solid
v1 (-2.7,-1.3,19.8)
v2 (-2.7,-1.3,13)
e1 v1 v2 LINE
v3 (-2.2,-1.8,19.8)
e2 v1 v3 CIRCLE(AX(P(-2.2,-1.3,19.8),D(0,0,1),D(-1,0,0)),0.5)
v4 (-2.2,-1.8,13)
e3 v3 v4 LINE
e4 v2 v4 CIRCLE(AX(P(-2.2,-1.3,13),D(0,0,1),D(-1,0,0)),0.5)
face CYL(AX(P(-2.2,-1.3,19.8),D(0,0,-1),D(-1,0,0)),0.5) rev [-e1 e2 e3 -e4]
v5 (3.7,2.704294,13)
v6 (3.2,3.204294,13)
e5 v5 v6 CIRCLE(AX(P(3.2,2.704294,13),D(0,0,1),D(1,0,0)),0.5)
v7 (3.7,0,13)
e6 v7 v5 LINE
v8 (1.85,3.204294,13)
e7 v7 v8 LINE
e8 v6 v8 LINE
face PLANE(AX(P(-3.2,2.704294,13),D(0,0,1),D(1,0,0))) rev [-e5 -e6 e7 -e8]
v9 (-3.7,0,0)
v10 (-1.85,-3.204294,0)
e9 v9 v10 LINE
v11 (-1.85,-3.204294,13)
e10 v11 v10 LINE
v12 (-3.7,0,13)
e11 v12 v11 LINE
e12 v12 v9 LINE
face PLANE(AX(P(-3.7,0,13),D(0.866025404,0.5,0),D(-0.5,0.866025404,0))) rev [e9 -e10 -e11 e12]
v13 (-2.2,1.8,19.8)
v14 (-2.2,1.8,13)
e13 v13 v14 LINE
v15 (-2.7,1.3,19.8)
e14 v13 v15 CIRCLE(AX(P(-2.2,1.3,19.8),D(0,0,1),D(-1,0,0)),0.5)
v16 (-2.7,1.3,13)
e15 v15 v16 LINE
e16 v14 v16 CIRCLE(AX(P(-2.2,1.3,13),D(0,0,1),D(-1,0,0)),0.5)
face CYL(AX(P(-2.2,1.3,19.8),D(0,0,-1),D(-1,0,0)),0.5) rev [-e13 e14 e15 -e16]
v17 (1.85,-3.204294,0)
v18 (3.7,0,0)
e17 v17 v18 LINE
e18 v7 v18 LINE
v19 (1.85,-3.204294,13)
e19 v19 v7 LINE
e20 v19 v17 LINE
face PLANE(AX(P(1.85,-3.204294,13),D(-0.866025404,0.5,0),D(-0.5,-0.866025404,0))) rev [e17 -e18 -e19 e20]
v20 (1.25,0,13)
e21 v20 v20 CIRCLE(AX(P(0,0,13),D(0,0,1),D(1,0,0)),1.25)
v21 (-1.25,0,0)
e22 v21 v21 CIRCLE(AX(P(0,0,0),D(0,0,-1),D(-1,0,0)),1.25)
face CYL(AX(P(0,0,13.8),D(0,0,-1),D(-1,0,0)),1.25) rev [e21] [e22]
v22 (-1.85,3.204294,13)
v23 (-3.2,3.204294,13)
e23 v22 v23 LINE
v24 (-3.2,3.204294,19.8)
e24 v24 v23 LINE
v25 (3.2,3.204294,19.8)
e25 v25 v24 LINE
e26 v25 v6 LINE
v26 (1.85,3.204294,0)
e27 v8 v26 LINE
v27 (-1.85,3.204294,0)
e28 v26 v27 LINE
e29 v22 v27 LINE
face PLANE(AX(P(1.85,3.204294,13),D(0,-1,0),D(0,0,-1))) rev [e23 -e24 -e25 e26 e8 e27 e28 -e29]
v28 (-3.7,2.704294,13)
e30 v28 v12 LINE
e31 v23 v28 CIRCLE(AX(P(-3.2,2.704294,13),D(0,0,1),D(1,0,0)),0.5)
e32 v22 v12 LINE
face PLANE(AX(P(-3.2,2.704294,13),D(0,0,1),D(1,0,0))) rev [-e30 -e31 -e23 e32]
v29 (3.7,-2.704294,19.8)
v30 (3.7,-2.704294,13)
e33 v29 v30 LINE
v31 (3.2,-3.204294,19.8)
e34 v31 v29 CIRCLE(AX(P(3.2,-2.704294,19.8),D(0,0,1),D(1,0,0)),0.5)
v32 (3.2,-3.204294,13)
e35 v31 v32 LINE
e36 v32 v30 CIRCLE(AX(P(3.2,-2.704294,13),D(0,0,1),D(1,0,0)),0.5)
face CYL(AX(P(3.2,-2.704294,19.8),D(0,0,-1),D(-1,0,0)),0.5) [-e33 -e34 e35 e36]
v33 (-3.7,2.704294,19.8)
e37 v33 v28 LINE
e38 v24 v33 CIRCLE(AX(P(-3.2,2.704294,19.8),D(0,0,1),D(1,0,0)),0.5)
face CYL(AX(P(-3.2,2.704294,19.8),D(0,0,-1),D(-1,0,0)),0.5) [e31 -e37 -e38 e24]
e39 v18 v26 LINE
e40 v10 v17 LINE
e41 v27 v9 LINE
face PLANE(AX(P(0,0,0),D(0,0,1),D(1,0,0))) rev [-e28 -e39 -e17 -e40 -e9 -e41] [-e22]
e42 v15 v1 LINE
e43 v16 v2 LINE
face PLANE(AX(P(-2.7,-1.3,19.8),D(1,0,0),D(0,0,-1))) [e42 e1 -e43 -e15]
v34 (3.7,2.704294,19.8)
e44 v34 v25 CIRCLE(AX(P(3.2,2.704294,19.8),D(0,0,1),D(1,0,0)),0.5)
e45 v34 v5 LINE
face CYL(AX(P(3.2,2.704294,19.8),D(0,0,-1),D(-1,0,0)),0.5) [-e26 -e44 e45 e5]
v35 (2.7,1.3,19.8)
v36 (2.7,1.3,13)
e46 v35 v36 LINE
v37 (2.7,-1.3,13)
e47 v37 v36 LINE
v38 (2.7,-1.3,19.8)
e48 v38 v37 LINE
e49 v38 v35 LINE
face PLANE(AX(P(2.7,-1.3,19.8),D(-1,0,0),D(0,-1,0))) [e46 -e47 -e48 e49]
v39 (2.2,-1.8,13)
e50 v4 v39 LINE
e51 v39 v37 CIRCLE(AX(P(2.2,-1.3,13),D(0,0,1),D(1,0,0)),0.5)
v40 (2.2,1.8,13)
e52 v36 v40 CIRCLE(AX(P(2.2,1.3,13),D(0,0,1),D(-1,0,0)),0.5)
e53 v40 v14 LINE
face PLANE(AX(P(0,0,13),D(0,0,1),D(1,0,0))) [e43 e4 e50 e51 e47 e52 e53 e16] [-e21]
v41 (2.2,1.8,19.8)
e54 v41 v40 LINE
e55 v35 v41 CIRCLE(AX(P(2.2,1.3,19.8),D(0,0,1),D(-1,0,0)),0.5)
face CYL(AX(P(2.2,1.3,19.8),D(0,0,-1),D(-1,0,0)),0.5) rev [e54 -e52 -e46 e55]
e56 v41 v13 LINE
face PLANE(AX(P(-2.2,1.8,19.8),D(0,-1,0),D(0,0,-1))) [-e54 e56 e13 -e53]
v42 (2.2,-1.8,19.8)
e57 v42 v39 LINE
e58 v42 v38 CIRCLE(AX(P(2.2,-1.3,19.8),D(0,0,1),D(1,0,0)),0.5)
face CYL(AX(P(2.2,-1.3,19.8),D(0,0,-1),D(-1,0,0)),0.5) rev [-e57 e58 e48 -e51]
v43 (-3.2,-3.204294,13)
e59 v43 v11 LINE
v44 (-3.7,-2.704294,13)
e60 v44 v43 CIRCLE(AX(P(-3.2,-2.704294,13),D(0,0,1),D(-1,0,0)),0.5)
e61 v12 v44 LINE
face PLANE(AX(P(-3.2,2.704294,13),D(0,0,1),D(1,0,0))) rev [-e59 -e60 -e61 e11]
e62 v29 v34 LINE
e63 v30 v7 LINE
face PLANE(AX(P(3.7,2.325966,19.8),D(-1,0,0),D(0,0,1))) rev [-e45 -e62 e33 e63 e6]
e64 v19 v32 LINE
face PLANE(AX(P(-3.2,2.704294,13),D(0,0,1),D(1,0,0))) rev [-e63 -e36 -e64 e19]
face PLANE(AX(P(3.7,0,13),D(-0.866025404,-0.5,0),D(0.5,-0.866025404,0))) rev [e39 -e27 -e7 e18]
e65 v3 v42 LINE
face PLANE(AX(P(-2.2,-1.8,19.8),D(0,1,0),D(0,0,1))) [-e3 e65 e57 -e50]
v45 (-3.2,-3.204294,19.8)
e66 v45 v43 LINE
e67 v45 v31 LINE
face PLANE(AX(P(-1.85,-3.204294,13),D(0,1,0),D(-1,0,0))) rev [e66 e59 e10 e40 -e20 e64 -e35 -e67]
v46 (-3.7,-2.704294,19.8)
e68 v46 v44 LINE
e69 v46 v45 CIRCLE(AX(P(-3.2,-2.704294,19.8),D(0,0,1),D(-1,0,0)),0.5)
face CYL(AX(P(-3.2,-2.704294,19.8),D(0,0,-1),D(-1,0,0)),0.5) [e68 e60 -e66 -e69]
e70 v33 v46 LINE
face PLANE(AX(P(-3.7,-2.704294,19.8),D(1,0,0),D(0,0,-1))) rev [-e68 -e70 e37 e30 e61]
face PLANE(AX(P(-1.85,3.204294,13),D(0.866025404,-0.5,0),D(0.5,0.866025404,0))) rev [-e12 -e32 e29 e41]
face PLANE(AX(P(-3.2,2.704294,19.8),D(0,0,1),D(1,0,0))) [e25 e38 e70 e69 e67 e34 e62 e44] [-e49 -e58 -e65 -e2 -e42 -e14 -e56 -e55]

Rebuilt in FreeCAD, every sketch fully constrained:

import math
import FreeCAD as App
import Part
import Sketcher
Q = App.Units.Quantity

doc = App.newDocument("Part")
body = doc.addObject("PartDesign::Body", "Body")

sketch1 = body.newObject("Sketcher::SketchObject", "Sketch")
sketch1.AttachmentSupport = (doc.getObject("XY_Plane"), [""])
sketch1.MapMode = "FlatFace"
sketch1.addGeometry([
    Part.LineSegment(App.Vector(3.7, 0, 0), App.Vector(1.9, 3.2, 0)),
    Part.LineSegment(App.Vector(1.9, 3.2, 0), App.Vector(-1.9, 3.2, 0)),
    Part.LineSegment(App.Vector(-1.9, 3.2, 0), App.Vector(-3.7, 0, 0)),
    Part.LineSegment(App.Vector(-3.7, 0, 0), App.Vector(-1.9, -3.2, 0)),
    Part.LineSegment(App.Vector(-1.9, -3.2, 0), App.Vector(1.9, -3.2, 0)),
    Part.LineSegment(App.Vector(1.9, -3.2, 0), App.Vector(3.7, 0, 0)),
], False)
sketch1.addConstraint([
    Sketcher.Constraint("Coincident", 0, 2, 1, 1),
    Sketcher.Constraint("Coincident", 1, 2, 2, 1),
    Sketcher.Constraint("Coincident", 2, 2, 3, 1),
    Sketcher.Constraint("Coincident", 3, 2, 4, 1),
    Sketcher.Constraint("Coincident", 4, 2, 5, 1),
    Sketcher.Constraint("Coincident", 5, 2, 0, 1),
    Sketcher.Constraint("Horizontal", 1),
    Sketcher.Constraint("Horizontal", 4),
    Sketcher.Constraint("Symmetric", 0, 2, 3, 2, -1, 1),
    Sketcher.Constraint("Symmetric", 2, 2, 5, 2, -1, 1),
    Sketcher.Constraint("PointOnObject", 2, 2, -1),
    Sketcher.Constraint("Parallel", 2, 5),
    Sketcher.Constraint("Vertical", 1, 2, 3, 2),
    Sketcher.Constraint("Angle", 0, Q("120 deg")),
    Sketcher.Constraint("DistanceX", 1, 2, 1, 1, Q("3.7 mm")),
    Sketcher.Constraint("Distance", 0, Q("3.7 mm")),
])
pad1 = body.newObject("PartDesign::Pad", "Pad")
pad1.Profile = sketch1
pad1.Length = 13

sketch2 = body.newObject("Sketcher::SketchObject", "Sketch001")
sketch2.AttachmentSupport = (doc.getObject("XY_Plane"), [""])
sketch2.MapMode = "FlatFace"
sketch2.AttachmentOffset = App.Placement(App.Vector(0, 0, 13), App.Rotation())
sketch2.addGeometry([
    Part.ArcOfCircle(Part.Circle(App.Vector(3.2, -2.7, 0), App.Vector(0, 0, 1), 0.5), math.radians(-90), math.radians(0)),
    Part.LineSegment(App.Vector(3.7, -2.7, 0), App.Vector(3.7, 2.7, 0)),
    Part.ArcOfCircle(Part.Circle(App.Vector(3.2, 2.7, 0), App.Vector(0, 0, 1), 0.5), math.radians(0), math.radians(90)),
    Part.LineSegment(App.Vector(3.2, 3.2, 0), App.Vector(-3.2, 3.2, 0)),
    Part.ArcOfCircle(Part.Circle(App.Vector(-3.2, 2.7, 0), App.Vector(0, 0, 1), 0.5), math.radians(90), math.radians(180)),
    Part.LineSegment(App.Vector(-3.7, 2.7, 0), App.Vector(-3.7, -2.7, 0)),
    Part.ArcOfCircle(Part.Circle(App.Vector(-3.2, -2.7, 0), App.Vector(0, 0, 1), 0.5), math.radians(180), math.radians(270)),
    Part.LineSegment(App.Vector(-3.2, -3.2, 0), App.Vector(3.2, -3.2, 0)),
    Part.LineSegment(App.Vector(2.2, -1.8, 0), App.Vector(-2.2, -1.8, 0)),
    Part.ArcOfCircle(Part.Circle(App.Vector(-2.2, -1.3, 0), App.Vector(0, 0, 1), 0.5), math.radians(180), math.radians(270)),
    Part.LineSegment(App.Vector(-2.7, -1.3, 0), App.Vector(-2.7, 1.3, 0)),
    Part.ArcOfCircle(Part.Circle(App.Vector(-2.2, 1.3, 0), App.Vector(0, 0, 1), 0.5), math.radians(90), math.radians(180)),
    Part.LineSegment(App.Vector(-2.2, 1.8, 0), App.Vector(2.2, 1.8, 0)),
    Part.ArcOfCircle(Part.Circle(App.Vector(2.2, 1.3, 0), App.Vector(0, 0, 1), 0.5), math.radians(0), math.radians(90)),
    Part.LineSegment(App.Vector(2.7, 1.3, 0), App.Vector(2.7, -1.3, 0)),
    Part.ArcOfCircle(Part.Circle(App.Vector(2.2, -1.3, 0), App.Vector(0, 0, 1), 0.5), math.radians(-90), math.radians(0)),
], False)
sketch2.addConstraint([
    Sketcher.Constraint("Tangent", 0, 2, 1, 1),
    Sketcher.Constraint("Tangent", 1, 2, 2, 1),
    Sketcher.Constraint("Tangent", 2, 2, 3, 1),
    Sketcher.Constraint("Tangent", 3, 2, 4, 1),
    Sketcher.Constraint("Tangent", 4, 2, 5, 1),
    Sketcher.Constraint("Tangent", 5, 2, 6, 1),
    Sketcher.Constraint("Tangent", 6, 2, 7, 1),
    Sketcher.Constraint("Tangent", 7, 2, 0, 1),
    Sketcher.Constraint("Tangent", 8, 2, 9, 2),
    Sketcher.Constraint("Tangent", 9, 1, 10, 1),
    Sketcher.Constraint("Tangent", 10, 2, 11, 2),
    Sketcher.Constraint("Tangent", 11, 1, 12, 1),
    Sketcher.Constraint("Tangent", 12, 2, 13, 2),
    Sketcher.Constraint("Tangent", 13, 1, 14, 1),
    Sketcher.Constraint("Tangent", 14, 2, 15, 2),
    Sketcher.Constraint("Tangent", 15, 1, 8, 1),
    Sketcher.Constraint("Vertical", 1),
    Sketcher.Constraint("Horizontal", 3),
    Sketcher.Constraint("Vertical", 5),
    Sketcher.Constraint("Horizontal", 7),
    Sketcher.Constraint("Horizontal", 8),
    Sketcher.Constraint("Vertical", 10),
    Sketcher.Constraint("Horizontal", 12),
    Sketcher.Constraint("Vertical", 14),
    Sketcher.Constraint("Equal", 0, 2),
    Sketcher.Constraint("Equal", 2, 4),
    Sketcher.Constraint("Equal", 4, 6),
    Sketcher.Constraint("Equal", 6, 9),
    Sketcher.Constraint("Equal", 9, 11),
    Sketcher.Constraint("Equal", 11, 13),
    Sketcher.Constraint("Equal", 13, 15),
    Sketcher.Constraint("Symmetric", 0, 3, 4, 3, -1, 1),
    Sketcher.Constraint("Symmetric", 9, 3, 13, 3, -1, 1),
    Sketcher.Constraint("Radius", 0, Q("0.5 mm")),
    Sketcher.Constraint("DistanceX", 3, 2, 3, 1, Q("6.4 mm")),
    Sketcher.Constraint("DistanceX", 8, 2, 8, 1, Q("4.4 mm")),
    Sketcher.Constraint("DistanceY", 10, 1, 10, 2, Q("2.6 mm")),
    Sketcher.Constraint("DistanceY", 1, 1, 1, 2, Q("5.408588 mm")),
])
pad2 = body.newObject("PartDesign::Pad", "Pad001")
pad2.Profile = sketch2
pad2.Length = 6.8

sketch3 = body.newObject("Sketcher::SketchObject", "Sketch002")
sketch3.AttachmentSupport = (doc.getObject("XY_Plane"), [""])
sketch3.MapMode = "FlatFace"
sketch3.addGeometry(Part.Circle(App.Vector(0, 0, 0), App.Vector(0, 0, 1), 1.2), False)
sketch3.addConstraint([
    Sketcher.Constraint("Coincident", 0, 3, -1, 1),
    Sketcher.Constraint("Diameter", 0, Q("2.5 mm")),
])
pocket1 = body.newObject("PartDesign::Pocket", "Pocket")
pocket1.Profile = sketch3
pocket1.Length = 13.8
pocket1.Reversed = True

doc.recompute()
